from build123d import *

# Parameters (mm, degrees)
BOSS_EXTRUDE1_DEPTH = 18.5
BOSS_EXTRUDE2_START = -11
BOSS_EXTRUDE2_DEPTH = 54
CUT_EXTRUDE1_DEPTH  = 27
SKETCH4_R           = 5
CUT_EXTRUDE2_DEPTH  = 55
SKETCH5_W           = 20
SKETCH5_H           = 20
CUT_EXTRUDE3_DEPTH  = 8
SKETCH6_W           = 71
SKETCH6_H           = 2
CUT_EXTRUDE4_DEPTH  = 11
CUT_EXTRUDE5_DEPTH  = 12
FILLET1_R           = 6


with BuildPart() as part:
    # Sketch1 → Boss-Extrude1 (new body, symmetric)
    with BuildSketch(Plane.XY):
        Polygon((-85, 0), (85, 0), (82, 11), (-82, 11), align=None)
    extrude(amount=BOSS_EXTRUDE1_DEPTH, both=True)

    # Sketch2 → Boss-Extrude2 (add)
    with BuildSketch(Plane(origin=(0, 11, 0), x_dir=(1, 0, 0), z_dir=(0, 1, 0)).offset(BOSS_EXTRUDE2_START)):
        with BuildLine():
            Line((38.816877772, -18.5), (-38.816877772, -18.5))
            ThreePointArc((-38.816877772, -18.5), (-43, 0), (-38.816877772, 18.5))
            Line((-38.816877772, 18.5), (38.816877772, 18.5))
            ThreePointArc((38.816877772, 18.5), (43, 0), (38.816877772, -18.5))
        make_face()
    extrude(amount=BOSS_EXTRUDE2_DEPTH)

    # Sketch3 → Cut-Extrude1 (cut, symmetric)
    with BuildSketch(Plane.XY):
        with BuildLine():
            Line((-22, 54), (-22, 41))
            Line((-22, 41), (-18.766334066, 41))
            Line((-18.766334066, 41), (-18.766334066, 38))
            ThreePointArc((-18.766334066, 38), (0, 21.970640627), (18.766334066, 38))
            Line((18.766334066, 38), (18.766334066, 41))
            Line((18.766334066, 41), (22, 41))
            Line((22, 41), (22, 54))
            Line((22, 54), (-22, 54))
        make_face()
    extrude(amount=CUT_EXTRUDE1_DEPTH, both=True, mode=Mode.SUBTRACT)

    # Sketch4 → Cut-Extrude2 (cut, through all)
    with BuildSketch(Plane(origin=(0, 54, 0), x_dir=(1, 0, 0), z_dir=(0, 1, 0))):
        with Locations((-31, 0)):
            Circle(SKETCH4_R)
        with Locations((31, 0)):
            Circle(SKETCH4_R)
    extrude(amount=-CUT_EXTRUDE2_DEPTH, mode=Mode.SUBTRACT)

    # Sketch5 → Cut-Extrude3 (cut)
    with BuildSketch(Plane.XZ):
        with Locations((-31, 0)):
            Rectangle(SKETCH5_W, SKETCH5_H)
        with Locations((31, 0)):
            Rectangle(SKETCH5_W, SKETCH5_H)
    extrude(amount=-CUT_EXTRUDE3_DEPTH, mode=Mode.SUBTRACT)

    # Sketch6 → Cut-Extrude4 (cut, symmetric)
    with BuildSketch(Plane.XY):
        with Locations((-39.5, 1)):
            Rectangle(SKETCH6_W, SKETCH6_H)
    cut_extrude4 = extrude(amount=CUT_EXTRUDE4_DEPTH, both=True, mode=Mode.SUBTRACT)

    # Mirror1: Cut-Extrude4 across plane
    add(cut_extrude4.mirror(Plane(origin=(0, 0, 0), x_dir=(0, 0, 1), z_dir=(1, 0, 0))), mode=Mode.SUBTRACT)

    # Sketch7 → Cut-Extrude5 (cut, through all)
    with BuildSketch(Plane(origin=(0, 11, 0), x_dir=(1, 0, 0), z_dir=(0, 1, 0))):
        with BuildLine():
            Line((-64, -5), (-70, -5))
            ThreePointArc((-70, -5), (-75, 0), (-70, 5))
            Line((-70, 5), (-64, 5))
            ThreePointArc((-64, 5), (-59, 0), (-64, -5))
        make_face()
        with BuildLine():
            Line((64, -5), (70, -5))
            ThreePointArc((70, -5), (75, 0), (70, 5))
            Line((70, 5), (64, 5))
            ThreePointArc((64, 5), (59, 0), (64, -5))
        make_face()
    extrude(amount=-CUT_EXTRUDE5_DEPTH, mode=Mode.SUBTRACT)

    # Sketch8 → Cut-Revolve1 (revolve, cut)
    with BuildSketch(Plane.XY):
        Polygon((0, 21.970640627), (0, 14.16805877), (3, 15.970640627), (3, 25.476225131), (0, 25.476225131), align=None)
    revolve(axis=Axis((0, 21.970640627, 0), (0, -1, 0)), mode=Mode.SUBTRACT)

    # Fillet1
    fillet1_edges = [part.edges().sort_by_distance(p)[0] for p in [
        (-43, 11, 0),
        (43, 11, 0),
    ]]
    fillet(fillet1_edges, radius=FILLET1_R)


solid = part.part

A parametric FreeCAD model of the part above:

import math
import FreeCAD as App
import Part
import Sketcher
from FreeCAD import Vector
Q = App.Units.Quantity


def edges_at(feature, points):
    """Names of the edges that pass closest to the given points."""
    edges = feature.Shape.Edges
    near = lambda p: min(range(len(edges)), key=lambda i: edges[i].distToShape(Part.Vertex(*p))[0])
    return sorted({f"Edge{near(p) + 1}" for p in points})


def add_polygon(sketch, points):
    """Adds a closed chain of lines whose ends are joined by coincident constraints."""
    first, n = sketch.GeometryCount, len(points)
    for a, b in zip(points, points[1:] + points[:1]):
        sketch.addGeometry(Part.LineSegment(App.Vector(*a, 0), App.Vector(*b, 0)), False)
    for i in range(n):
        sketch.addConstraint(Sketcher.Constraint("Coincident", first + i, 2, first + (i + 1) % n, 1))

doc = App.newDocument("Part")
body = doc.addObject("PartDesign::Body", "Body")

sketch1 = body.newObject("Sketcher::SketchObject", "Sketch")
sketch1.AttachmentSupport = (doc.getObject("XY_Plane"), [""])
sketch1.MapMode = "FlatFace"
add_polygon(sketch1, [(-85, 0), (85, 0), (82, 11), (-82, 11)])
sketch1.addConstraint([
    Sketcher.Constraint("Horizontal", 0),
    Sketcher.Constraint("Horizontal", 2),
    Sketcher.Constraint("Symmetric", 0, 2, 3, 2, -1, 1),
    Sketcher.Constraint("Equal", 1, 3),
    Sketcher.Constraint("DistanceX", 0, 1, 0, 2, 170.0),
    Sketcher.Constraint("DistanceX", 2, 2, 2, 1, 164.0),
    Sketcher.Constraint("DistanceY", -1, 1, 1, 2, 11.0),
])
pad1 = body.newObject("PartDesign::Pad", "Pad")
pad1.Profile = sketch1
pad1.Length = 37
pad1.Midplane = True

sketch2 = body.newObject("Sketcher::SketchObject", "Sketch001")
sketch2.AttachmentSupport = (doc.getObject("XZ_Plane"), [""])
sketch2.MapMode = "FlatFace"
sketch2.addGeometry([
    Part.LineSegment(Vector(-38.816878, 18.5, 0), Vector(38.816878, 18.5, 0)),
    Part.ArcOfCircle(Part.Circle(Vector(0, 0, 0), Vector(0, 0, 1), 43), math.radians(-25.48232), math.radians(25.48232)),
    Part.LineSegment(Vector(38.816878, -18.5, 0), Vector(-38.816878, -18.5, 0)),
    Part.ArcOfCircle(Part.Circle(Vector(0, 0, 0), Vector(0, 0, 1), 43), math.radians(154.51768), math.radians(205.48232)),
], False)
sketch2.addConstraint([
    Sketcher.Constraint("Coincident", 0, 2, 1, 2),
    Sketcher.Constraint("Coincident", 1, 1, 2, 1),
    Sketcher.Constraint("Coincident", 2, 2, 3, 2),
    Sketcher.Constraint("Coincident", 3, 1, 0, 1),
    Sketcher.Constraint("Horizontal", 0),
    Sketcher.Constraint("Horizontal", 2),
    Sketcher.Constraint("Coincident", 1, 3, -1, 1),
    Sketcher.Constraint("Coincident", 3, 3, -1, 1),
    Sketcher.Constraint("Equal", 1, 3),
    Sketcher.Constraint("Vertical", 0, 2, 1, 1),
    Sketcher.Constraint("Radius", 1, 43.0),
    Sketcher.Constraint("DistanceY", 1, 1, 0, 2, 37.0),
])
pad2 = body.newObject("PartDesign::Pad", "Pad001")
pad2.Profile = sketch2
pad2.Length = 54
pad2.Reversed = True

sketch3 = body.newObject("Sketcher::SketchObject", "Sketch002")
sketch3.AttachmentSupport = (doc.getObject("XY_Plane"), [""])
sketch3.MapMode = "FlatFace"
sketch3.addGeometry([
    Part.LineSegment(Vector(-22, 54, 0), Vector(-22, 41, 0)),
    Part.LineSegment(Vector(-22, 41, 0), Vector(-18.766334, 41, 0)),
    Part.LineSegment(Vector(-18.766334, 41, 0), Vector(-18.766334, 38, 0)),
    Part.ArcOfCircle(Part.Circle(Vector(0, 40.970641, 0), Vector(0, 0, 1), 19), math.radians(-171.004928), math.radians(-8.995072)),
    Part.LineSegment(Vector(18.766334, 38, 0), Vector(18.766334, 41, 0)),
    Part.LineSegment(Vector(18.766334, 41, 0), Vector(22, 41, 0)),
    Part.LineSegment(Vector(22, 41, 0), Vector(22, 54, 0)),
    Part.LineSegment(Vector(22, 54, 0), Vector(-22, 54, 0)),
], False)
sketch3.addConstraint([
    Sketcher.Constraint("Coincident", 0, 2, 1, 1),
    Sketcher.Constraint("Coincident", 1, 2, 2, 1),
    Sketcher.Constraint("Coincident", 2, 2, 3, 1),
    Sketcher.Constraint("Coincident", 3, 2, 4, 1),
    Sketcher.Constraint("Coincident", 4, 2, 5, 1),
    Sketcher.Constraint("Coincident", 5, 2, 6, 1),
    Sketcher.Constraint("Coincident", 6, 2, 7, 1),
    Sketcher.Constraint("Coincident", 7, 2, 0, 1),
    Sketcher.Constraint("Vertical", 0),
    Sketcher.Constraint("Horizontal", 1),
    Sketcher.Constraint("Vertical", 2),
    Sketcher.Constraint("Vertical", 4),
    Sketcher.Constraint("Horizontal", 5),
    Sketcher.Constraint("Vertical", 6),
    Sketcher.Constraint("Horizontal", 7),
    Sketcher.Constraint("Symmetric", 2, 2, 3, 2, -2),
    Sketcher.Constraint("Symmetric", 0, 2, 5, 2, -2),
    Sketcher.Constraint("Radius", 3, 19.0),
    Sketcher.Constraint("DistanceX", 7, 2, 7, 1, 44.0),
    Sketcher.Constraint("DistanceY", 0, 2, 0, 1, 13.0),
    Sketcher.Constraint("DistanceY", 2, 2, 2, 1, 3.0),
    Sketcher.Constraint("DistanceY", -1, 1, 0, 2, 41.0),
    Sketcher.Constraint("DistanceX", 1, 1, 1, 2, 3.233666),
])
pocket1 = body.newObject("PartDesign::Pocket", "Pocket")
pocket1.Profile = sketch3
pocket1.Length = 54
pocket1.Midplane = True

sketch4 = body.newObject("Sketcher::SketchObject", "Sketch003")
sketch4.AttachmentSupport = (doc.getObject("XZ_Plane"), [""])
sketch4.MapMode = "FlatFace"
sketch4.AttachmentOffset = App.Placement(Vector(0, 0, -54), App.Rotation())
sketch4.addGeometry([
    Part.Circle(Vector(-31, 0, 0), Vector(0, 0, 1), 5),
    Part.Circle(Vector(31, 0, 0), Vector(0, 0, 1), 5),
], False)
sketch4.addConstraint([
    Sketcher.Constraint("Equal", 0, 1),
    Sketcher.Constraint("Symmetric", 0, 3, 1, 3, -1, 1),
    Sketcher.Constraint("PointOnObject", 0, 3, -1),
    Sketcher.Constraint("Diameter", 0, 10.0),
    Sketcher.Constraint("DistanceX", 0, 3, -1, 1, 31.0),
])
pocket2 = body.newObject("PartDesign::Pocket", "Pocket001")
pocket2.Profile = sketch4
pocket2.Type = "ThroughAll"
pocket2.Reversed = True

sketch5 = body.newObject("Sketcher::SketchObject", "Sketch004")
sketch5.AttachmentSupport = (doc.getObject("XZ_Plane"), [""])
sketch5.MapMode = "FlatFace"
add_polygon(sketch5, [(-41, 10), (-41, -10), (-21, -10), (-21, 10)])
add_polygon(sketch5, [(21, 10), (21, -10), (41, -10), (41, 10)])
sketch5.addConstraint([
    Sketcher.Constraint("Vertical", 0),
    Sketcher.Constraint("Horizontal", 1),
    Sketcher.Constraint("Vertical", 2),
    Sketcher.Constraint("Horizontal", 3),
    Sketcher.Constraint("Vertical", 4),
    Sketcher.Constraint("Horizontal", 5),
    Sketcher.Constraint("Vertical", 6),
    Sketcher.Constraint("Horizontal", 7),
    Sketcher.Constraint("Symmetric", 2, 2, 4, 2, -1, 1),
    Sketcher.Constraint("Symmetric", 0, 2, 6, 2, -1, 1),
    Sketcher.Constraint("Horizontal", 1, 2, 4, 2),
    Sketcher.Constraint("Equal", 7, 0),
    Sketcher.Constraint("DistanceX", 1, 1, 1, 2, 20.0),
    Sketcher.Constraint("DistanceX", 0, 2, -1, 1, 41.0),
])
pocket3 = body.newObject("PartDesign::Pocket", "Pocket002")
pocket3.Profile = sketch5
pocket3.Length = 8

sketch6 = body.newObject("Sketcher::SketchObject", "Sketch005")
sketch6.AttachmentSupport = (doc.getObject("XY_Plane"), [""])
sketch6.MapMode = "FlatFace"
add_polygon(sketch6, [(-75, 2), (-75, 0), (-4, 0), (-4, 2)])
sketch6.addConstraint([
    Sketcher.Constraint("Vertical", 0),
    Sketcher.Constraint("Horizontal", 1),
    Sketcher.Constraint("Vertical", 2),
    Sketcher.Constraint("Horizontal", 3),
    Sketcher.Constraint("PointOnObject", 0, 2, -1),
    Sketcher.Constraint("DistanceX", 1, 1, 1, 2, 71.0),
    Sketcher.Constraint("DistanceY", 0, 2, 0, 1, 2.0),
    Sketcher.Constraint("DistanceX", 0, 2, -1, 1, 75.0),
])
pocket4 = body.newObject("PartDesign::Pocket", "Pocket003")
pocket4.Profile = sketch6
pocket4.Length = 22
pocket4.Midplane = True
doc.recompute()

mirrored = body.newObject("PartDesign::Mirrored", "Mirrored")
mirrored.Originals = [pocket4]
mirrored.MirrorPlane = (doc.getObject("YZ_Plane"), [""])
body.Tip = mirrored

sketch7 = body.newObject("Sketcher::SketchObject", "Sketch006")
sketch7.AttachmentSupport = (doc.getObject("XZ_Plane"), [""])
sketch7.MapMode = "FlatFace"
sketch7.AttachmentOffset = App.Placement(Vector(0, 0, -11), App.Rotation())
sketch7.addGeometry([
    Part.LineSegment(Vector(-70, 5, 0), Vector(-64, 5, 0)),
    Part.ArcOfCircle(Part.Circle(Vector(-64, 0, 0), Vector(0, 0, 1), 5), math.radians(-90), math.radians(90)),
    Part.LineSegment(Vector(-64, -5, 0), Vector(-70, -5, 0)),
    Part.ArcOfCircle(Part.Circle(Vector(-70, 0, 0), Vector(0, 0, 1), 5), math.radians(90), math.radians(270)),
    Part.LineSegment(Vector(64, 5, 0), Vector(70, 5, 0)),
    Part.ArcOfCircle(Part.Circle(Vector(70, 0, 0), Vector(0, 0, 1), 5), math.radians(-90), math.radians(90)),
    Part.LineSegment(Vector(70, -5, 0), Vector(64, -5, 0)),
    Part.ArcOfCircle(Part.Circle(Vector(64, 0, 0), Vector(0, 0, 1), 5), math.radians(90), math.radians(270)),
], False)
sketch7.addConstraint([
    Sketcher.Constraint("Tangent", 0, 2, 1, 2),
    Sketcher.Constraint("Tangent", 1, 1, 2, 1),
    Sketcher.Constraint("Tangent", 2, 2, 3, 2),
    Sketcher.Constraint("Tangent", 3, 1, 0, 1),
    Sketcher.Constraint("Tangent", 4, 2, 5, 2),
    Sketcher.Constraint("Tangent", 5, 1, 6, 1),
    Sketcher.Constraint("Tangent", 6, 2, 7, 2),
    Sketcher.Constraint("Tangent", 7, 1, 4, 1),
    Sketcher.Constraint("Horizontal", 0),
    Sketcher.Constraint("Horizontal", 2),
    Sketcher.Constraint("Horizontal", 4),
    Sketcher.Constraint("Horizontal", 6),
    Sketcher.Constraint("Equal", 3, 5),
    Sketcher.Constraint("Symmetric", 3, 3, 5, 3, -1, 1),
    Sketcher.Constraint("Symmetric", 1, 3, 7, 3, -2),
    Sketcher.Constraint("Radius", 1, 5.0),
    Sketcher.Constraint("DistanceX", 0, 1, 0, 2, 6.0),
    Sketcher.Constraint("DistanceX", 1, 3, -1, 1, 64.0),
])
pocket5 = body.newObject("PartDesign::Pocket", "Pocket004")
pocket5.Profile = sketch7
pocket5.Type = "ThroughAll"
pocket5.Reversed = True

sketch8 = body.newObject("Sketcher::SketchObject", "Sketch007")
sketch8.AttachmentSupport = (doc.getObject("XY_Plane"), [""])
sketch8.MapMode = "FlatFace"
add_polygon(sketch8, [(0, 14.168059), (3, 15.970641), (3, 25.476225), (0, 25.476225)])
sketch8.addConstraint([
    Sketcher.Constraint("Vertical", 1),
    Sketcher.Constraint("Horizontal", 2),
    Sketcher.Constraint("Vertical", 3),
    Sketcher.Constraint("PointOnObject", 2, 2, -2),
    Sketcher.Constraint("DistanceX", 2, 2, 2, 1, 3.0),
    Sketcher.Constraint("Angle", 0, Q("31 deg")),
    Sketcher.Constraint("DistanceY", 1, 1, 1, 2, 9.505585),
    Sketcher.Constraint("DistanceY", -1, 1, 0, 2, 15.970641),
])
groove = body.newObject("PartDesign::Groove", "Groove")
groove.Profile = sketch8
groove.ReferenceAxis = (sketch8, ["V_Axis"])
groove.Angle = 360
doc.recompute()

fillet = body.newObject("PartDesign::Fillet", "Fillet")
fillet.Base = (groove, edges_at(groove, [(-43, 11, 0), (43, 11, 0)]))
fillet.Radius = 6

doc.recompute()
